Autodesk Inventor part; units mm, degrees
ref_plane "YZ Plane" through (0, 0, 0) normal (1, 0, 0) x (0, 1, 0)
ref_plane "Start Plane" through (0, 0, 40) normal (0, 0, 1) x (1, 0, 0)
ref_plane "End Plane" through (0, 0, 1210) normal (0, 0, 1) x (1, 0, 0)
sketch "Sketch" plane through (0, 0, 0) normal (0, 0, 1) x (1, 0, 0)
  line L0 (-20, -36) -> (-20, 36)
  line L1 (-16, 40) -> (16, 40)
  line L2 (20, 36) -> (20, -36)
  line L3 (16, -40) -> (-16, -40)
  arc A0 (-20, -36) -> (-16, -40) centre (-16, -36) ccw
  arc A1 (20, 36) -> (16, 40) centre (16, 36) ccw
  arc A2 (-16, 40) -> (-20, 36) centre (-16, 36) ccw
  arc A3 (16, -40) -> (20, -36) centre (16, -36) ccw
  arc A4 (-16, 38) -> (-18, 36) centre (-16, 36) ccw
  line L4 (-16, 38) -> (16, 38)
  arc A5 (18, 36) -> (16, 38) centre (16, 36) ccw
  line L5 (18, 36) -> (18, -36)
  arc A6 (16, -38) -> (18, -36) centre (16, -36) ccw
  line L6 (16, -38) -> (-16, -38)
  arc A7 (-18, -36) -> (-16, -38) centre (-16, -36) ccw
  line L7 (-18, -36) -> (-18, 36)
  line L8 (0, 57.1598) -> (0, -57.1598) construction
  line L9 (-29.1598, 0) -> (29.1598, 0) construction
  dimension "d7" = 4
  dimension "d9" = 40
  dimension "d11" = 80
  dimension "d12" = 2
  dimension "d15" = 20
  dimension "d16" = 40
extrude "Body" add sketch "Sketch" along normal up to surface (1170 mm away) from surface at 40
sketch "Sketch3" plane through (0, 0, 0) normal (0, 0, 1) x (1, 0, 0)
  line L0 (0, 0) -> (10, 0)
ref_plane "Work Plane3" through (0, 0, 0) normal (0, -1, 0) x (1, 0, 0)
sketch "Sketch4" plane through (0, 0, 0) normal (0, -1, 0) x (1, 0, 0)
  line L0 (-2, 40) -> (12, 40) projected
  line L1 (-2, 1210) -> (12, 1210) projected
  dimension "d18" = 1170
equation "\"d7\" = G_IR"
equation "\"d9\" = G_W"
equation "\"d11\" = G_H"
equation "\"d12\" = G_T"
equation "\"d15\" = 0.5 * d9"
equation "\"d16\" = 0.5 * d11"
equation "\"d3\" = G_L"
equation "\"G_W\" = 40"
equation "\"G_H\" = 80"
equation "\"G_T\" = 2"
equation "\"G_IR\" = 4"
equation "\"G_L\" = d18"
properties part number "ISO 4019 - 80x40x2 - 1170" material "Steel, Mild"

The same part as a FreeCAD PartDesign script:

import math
import FreeCAD as App
import Part
import Sketcher
Q = App.Units.Quantity

doc = App.newDocument("Part")
body = doc.addObject("PartDesign::Body", "Body")

# Sketch on XY plane
sketch1 = doc.addObject("Sketcher::SketchObject", "Sketch")
body.addObject(sketch1)
sketch1.AttachmentSupport = (doc.XY_Plane, [""])
sketch1.MapMode = "FlatFace"
sketch1.AttachmentOffset = App.Placement(App.Vector(0, 0, 40), App.Rotation())
sketch1.addGeometry([
    Part.LineSegment(App.Vector(-20, 36, 0), App.Vector(-20, -36, 0)),  # 0
    Part.ArcOfCircle(Part.Circle(App.Vector(-16, -36, 0), App.Vector(0, 0, 1), 4), math.radians(180), math.radians(270)),  # 1
    Part.LineSegment(App.Vector(-16, -40, 0), App.Vector(16, -40, 0)),  # 2
    Part.ArcOfCircle(Part.Circle(App.Vector(16, -36, 0), App.Vector(0, 0, 1), 4), math.radians(-90), math.radians(0)),  # 3
    Part.LineSegment(App.Vector(20, -36, 0), App.Vector(20, 36, 0)),  # 4
    Part.ArcOfCircle(Part.Circle(App.Vector(16, 36, 0), App.Vector(0, 0, 1), 4), math.radians(0), math.radians(90)),  # 5
    Part.LineSegment(App.Vector(16, 40, 0), App.Vector(-16, 40, 0)),  # 6
    Part.ArcOfCircle(Part.Circle(App.Vector(-16, 36, 0), App.Vector(0, 0, 1), 4), math.radians(90), math.radians(180)),  # 7
    Part.ArcOfCircle(Part.Circle(App.Vector(-16, 36, 0), App.Vector(0, 0, 1), 2), math.radians(90), math.radians(180)),  # 8
    Part.LineSegment(App.Vector(-16, 38, 0), App.Vector(16, 38, 0)),  # 9
    Part.ArcOfCircle(Part.Circle(App.Vector(16, 36, 0), App.Vector(0, 0, 1), 2), math.radians(0), math.radians(90)),  # 10
    Part.LineSegment(App.Vector(18, 36, 0), App.Vector(18, -36, 0)),  # 11
    Part.ArcOfCircle(Part.Circle(App.Vector(16, -36, 0), App.Vector(0, 0, 1), 2), math.radians(-90), math.radians(0)),  # 12
    Part.LineSegment(App.Vector(16, -38, 0), App.Vector(-16, -38, 0)),  # 13
    Part.ArcOfCircle(Part.Circle(App.Vector(-16, -36, 0), App.Vector(0, 0, 1), 2), math.radians(180), math.radians(270)),  # 14
    Part.LineSegment(App.Vector(-18, -36, 0), App.Vector(-18, 36, 0)),  # 15
], False)
sketch1.addConstraint([
    Sketcher.Constraint("Tangent", 0, 2, 1, 1),
    Sketcher.Constraint("Tangent", 1, 2, 2, 1),
    Sketcher.Constraint("Tangent", 2, 2, 3, 1),
    Sketcher.Constraint("Tangent", 3, 2, 4, 1),
    Sketcher.Constraint("Tangent", 4, 2, 5, 1),
    Sketcher.Constraint("Tangent", 5, 2, 6, 1),
    Sketcher.Constraint("Tangent", 6, 2, 7, 1),
    Sketcher.Constraint("Tangent", 7, 2, 0, 1),
    Sketcher.Constraint("Tangent", 8, 1, 9, 1),
    Sketcher.Constraint("Tangent", 9, 2, 10, 2),
    Sketcher.Constraint("Tangent", 10, 1, 11, 1),
    Sketcher.Constraint("Tangent", 11, 2, 12, 2),
    Sketcher.Constraint("Tangent", 12, 1, 13, 1),
    Sketcher.Constraint("Tangent", 13, 2, 14, 2),
    Sketcher.Constraint("Tangent", 14, 1, 15, 1),
    Sketcher.Constraint("Tangent", 15, 2, 8, 2),
    Sketcher.Constraint("Vertical", 0),
    Sketcher.Constraint("Horizontal", 2),
    Sketcher.Constraint("Vertical", 4),
    Sketcher.Constraint("Horizontal", 6),
    Sketcher.Constraint("Horizontal", 9),
    Sketcher.Constraint("Vertical", 11),
    Sketcher.Constraint("Horizontal", 13),
    Sketcher.Constraint("Vertical", 15),
    Sketcher.Constraint("Coincident", 8, 3, 7, 3),
    Sketcher.Constraint("Coincident", 10, 3, 5, 3),
    Sketcher.Constraint("Coincident", 12, 3, 3, 3),
    Sketcher.Constraint("Equal", 1, 3),
    Sketcher.Constraint("Equal", 3, 5),
    Sketcher.Constraint("Equal", 5, 7),
    Sketcher.Constraint("Equal", 12, 14),
    Sketcher.Constraint("Symmetric", 1, 3, 5, 3, -1, 1),
    Sketcher.Constraint("Radius", 1, Q("4 mm")),
    Sketcher.Constraint("Radius", 8, Q("2 mm")),
    Sketcher.Constraint("DistanceX", 0, 2, -1, 1, Q("20 mm")),
    Sketcher.Constraint("DistanceY", 1, 2, -1, 1, Q("40 mm")),
])
pad1 = doc.addObject("PartDesign::Pad", "Pad")
body.addObject(pad1)
pad1.Profile = sketch1
pad1.Length = 1170

doc.recompute()
